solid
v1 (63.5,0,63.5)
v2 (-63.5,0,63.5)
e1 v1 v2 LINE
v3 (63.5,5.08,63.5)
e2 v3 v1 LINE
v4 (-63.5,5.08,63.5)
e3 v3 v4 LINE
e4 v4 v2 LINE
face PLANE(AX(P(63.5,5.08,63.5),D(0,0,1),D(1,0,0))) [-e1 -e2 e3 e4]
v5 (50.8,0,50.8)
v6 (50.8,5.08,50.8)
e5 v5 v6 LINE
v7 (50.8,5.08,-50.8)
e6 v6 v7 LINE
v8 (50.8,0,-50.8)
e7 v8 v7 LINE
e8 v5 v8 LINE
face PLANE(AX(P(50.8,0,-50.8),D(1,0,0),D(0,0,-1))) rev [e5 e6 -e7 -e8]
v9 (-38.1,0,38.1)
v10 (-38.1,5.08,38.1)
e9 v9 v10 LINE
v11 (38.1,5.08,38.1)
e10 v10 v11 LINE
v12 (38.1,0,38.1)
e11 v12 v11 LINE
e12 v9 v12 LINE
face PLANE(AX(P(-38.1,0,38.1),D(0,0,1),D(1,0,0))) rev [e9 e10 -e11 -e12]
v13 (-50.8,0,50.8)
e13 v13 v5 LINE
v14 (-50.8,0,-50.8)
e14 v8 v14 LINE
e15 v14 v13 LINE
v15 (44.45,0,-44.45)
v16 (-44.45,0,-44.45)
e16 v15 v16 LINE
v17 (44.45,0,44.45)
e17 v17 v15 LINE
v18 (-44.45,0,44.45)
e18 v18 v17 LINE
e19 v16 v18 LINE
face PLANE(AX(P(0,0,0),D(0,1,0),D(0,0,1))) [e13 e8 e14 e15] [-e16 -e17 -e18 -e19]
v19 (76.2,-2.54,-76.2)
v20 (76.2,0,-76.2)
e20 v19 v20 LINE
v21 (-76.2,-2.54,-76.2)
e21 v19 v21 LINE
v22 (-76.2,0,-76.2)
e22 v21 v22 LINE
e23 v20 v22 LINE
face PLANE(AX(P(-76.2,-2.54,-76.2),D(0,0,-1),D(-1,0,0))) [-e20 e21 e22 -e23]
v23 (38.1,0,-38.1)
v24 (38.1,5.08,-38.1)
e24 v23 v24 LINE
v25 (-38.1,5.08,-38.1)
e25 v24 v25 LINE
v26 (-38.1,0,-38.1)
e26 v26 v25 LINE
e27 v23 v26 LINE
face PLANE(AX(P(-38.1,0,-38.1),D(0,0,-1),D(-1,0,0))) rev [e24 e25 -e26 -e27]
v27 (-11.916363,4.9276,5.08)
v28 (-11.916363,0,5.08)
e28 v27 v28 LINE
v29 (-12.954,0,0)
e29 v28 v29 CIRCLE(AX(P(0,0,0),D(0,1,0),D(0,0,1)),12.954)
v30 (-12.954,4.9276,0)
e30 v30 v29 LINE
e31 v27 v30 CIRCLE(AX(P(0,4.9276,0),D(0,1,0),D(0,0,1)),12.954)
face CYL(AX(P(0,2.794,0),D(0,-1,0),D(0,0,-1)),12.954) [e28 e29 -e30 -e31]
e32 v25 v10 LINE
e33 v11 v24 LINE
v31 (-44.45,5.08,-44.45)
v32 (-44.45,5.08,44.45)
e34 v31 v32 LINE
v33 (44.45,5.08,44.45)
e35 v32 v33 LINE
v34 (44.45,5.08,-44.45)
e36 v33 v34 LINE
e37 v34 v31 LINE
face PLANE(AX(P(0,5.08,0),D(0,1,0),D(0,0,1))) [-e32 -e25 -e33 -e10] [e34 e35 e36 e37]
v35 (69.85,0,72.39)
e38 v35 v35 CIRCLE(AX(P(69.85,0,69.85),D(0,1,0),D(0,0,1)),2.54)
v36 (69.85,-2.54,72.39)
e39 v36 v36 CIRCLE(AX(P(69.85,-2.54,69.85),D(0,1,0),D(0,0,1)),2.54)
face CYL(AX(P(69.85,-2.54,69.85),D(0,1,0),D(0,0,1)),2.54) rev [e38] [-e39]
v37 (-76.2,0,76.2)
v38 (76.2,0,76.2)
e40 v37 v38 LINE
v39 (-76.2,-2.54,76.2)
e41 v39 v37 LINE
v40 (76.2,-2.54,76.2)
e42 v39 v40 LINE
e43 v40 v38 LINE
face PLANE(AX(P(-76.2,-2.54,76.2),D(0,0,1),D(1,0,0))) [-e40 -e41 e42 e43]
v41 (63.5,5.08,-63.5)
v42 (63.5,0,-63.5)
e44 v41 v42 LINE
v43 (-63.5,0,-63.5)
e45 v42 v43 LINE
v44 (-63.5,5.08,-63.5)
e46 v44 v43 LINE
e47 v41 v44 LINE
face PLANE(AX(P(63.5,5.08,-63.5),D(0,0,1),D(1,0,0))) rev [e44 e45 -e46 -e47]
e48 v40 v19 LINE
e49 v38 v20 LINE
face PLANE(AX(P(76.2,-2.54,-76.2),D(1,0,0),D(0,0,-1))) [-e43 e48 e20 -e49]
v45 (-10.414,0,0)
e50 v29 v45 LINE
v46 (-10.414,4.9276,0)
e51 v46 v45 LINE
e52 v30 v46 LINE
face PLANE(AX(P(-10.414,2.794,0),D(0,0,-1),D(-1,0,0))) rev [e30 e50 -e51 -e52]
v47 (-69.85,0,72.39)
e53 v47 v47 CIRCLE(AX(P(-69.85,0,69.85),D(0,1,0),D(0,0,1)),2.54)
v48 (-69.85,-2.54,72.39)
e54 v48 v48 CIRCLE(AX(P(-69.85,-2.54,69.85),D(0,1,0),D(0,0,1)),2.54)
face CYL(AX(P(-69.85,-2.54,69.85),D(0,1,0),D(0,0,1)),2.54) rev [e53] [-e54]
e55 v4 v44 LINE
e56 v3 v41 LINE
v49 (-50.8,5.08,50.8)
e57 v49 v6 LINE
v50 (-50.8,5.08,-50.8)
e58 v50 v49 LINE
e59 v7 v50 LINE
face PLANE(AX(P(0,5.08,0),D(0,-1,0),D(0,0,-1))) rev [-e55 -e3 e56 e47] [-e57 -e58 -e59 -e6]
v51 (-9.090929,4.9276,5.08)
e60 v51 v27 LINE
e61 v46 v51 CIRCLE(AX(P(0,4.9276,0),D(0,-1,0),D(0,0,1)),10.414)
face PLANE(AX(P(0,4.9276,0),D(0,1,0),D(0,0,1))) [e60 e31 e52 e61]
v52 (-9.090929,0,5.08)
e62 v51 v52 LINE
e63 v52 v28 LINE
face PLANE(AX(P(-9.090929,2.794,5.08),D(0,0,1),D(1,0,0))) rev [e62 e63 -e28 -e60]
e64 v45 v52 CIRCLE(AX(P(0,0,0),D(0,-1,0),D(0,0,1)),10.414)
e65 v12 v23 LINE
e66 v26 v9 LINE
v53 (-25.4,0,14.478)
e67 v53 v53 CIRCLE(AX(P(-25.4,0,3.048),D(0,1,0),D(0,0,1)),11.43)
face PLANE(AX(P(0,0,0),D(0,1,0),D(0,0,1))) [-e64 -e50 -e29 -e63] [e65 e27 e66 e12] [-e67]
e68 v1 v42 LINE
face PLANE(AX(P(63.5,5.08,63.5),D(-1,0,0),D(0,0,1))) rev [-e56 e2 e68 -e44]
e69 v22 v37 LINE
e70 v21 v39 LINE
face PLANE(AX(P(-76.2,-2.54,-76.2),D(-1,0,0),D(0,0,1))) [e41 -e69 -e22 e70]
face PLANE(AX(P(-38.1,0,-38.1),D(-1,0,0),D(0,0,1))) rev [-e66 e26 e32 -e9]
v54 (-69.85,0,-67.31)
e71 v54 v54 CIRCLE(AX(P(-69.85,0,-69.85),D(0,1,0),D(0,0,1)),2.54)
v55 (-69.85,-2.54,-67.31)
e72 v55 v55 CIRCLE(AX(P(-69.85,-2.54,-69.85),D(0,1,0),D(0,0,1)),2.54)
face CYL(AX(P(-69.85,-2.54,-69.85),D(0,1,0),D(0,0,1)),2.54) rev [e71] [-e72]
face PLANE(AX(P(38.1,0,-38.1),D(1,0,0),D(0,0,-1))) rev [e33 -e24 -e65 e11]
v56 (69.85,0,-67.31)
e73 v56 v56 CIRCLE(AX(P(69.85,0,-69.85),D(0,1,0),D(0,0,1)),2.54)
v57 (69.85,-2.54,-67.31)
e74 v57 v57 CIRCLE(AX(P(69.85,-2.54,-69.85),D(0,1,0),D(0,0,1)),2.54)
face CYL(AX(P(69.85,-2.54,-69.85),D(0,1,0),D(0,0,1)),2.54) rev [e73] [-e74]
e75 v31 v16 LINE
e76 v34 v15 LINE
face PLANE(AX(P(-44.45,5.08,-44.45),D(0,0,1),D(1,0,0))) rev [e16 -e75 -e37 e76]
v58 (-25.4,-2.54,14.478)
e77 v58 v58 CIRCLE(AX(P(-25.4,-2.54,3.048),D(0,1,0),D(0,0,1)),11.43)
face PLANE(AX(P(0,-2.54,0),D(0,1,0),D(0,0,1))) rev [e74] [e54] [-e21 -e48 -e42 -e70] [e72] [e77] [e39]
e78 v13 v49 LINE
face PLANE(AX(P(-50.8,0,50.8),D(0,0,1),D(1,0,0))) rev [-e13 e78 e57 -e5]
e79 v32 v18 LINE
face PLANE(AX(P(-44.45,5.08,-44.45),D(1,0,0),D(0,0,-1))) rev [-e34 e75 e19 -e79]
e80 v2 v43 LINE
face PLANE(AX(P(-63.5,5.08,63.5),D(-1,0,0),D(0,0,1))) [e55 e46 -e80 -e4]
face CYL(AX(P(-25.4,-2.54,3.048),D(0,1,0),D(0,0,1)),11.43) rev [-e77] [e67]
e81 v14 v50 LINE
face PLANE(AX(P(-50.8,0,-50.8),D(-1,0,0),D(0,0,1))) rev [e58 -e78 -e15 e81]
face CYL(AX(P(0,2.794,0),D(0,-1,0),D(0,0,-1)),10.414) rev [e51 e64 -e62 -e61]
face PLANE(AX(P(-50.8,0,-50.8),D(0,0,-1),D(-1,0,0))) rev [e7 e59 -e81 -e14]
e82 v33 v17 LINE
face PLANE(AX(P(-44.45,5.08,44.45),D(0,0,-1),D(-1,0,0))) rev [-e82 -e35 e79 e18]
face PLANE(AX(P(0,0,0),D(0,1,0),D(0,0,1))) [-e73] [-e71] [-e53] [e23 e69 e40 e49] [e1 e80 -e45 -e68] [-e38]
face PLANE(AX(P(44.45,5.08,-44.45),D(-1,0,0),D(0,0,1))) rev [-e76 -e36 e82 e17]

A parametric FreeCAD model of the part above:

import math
import FreeCAD as App
import Part
import Sketcher
from FreeCAD import Vector
Q = App.Units.Quantity


def add_polygon(sketch, points):
    """Adds a closed chain of lines whose ends are joined by coincident constraints."""
    first, n = sketch.GeometryCount, len(points)
    for a, b in zip(points, points[1:] + points[:1]):
        sketch.addGeometry(Part.LineSegment(App.Vector(*a, 0), App.Vector(*b, 0)), False)
    for i in range(n):
        sketch.addConstraint(Sketcher.Constraint("Coincident", first + i, 2, first + (i + 1) % n, 1))

doc = App.newDocument("Part")
body = doc.addObject("PartDesign::Body", "Body")

# Sketch on XZ plane
sketch1 = doc.addObject("Sketcher::SketchObject", "Sketch")
body.addObject(sketch1)
sketch1.AttachmentSupport = (doc.XZ_Plane, [""])
sketch1.MapMode = "FlatFace"
add_polygon(sketch1, [(-76, -76), (-76, 76), (76, 76), (76, -76)])  # lines 0-3
sketch1.addConstraint([
    Sketcher.Constraint("Vertical", 0),
    Sketcher.Constraint("Horizontal", 1),
    Sketcher.Constraint("Vertical", 2),
    Sketcher.Constraint("Horizontal", 3),
    Sketcher.Constraint("Symmetric", 0, 2, 2, 2, -1, 1),
    Sketcher.Constraint("Equal", 3, 0),
    Sketcher.Constraint("DistanceX", 1, 1, 1, 2, Q("6 in")),
])
pad1 = doc.addObject("PartDesign::Pad", "Pad")
body.addObject(pad1)
pad1.Profile = sketch1
pad1.Length = Q("0.1 in")

# Sketch on XZ plane
sketch2 = doc.addObject("Sketcher::SketchObject", "Sketch001")
body.addObject(sketch2)
sketch2.AttachmentSupport = (doc.XZ_Plane, [""])
sketch2.MapMode = "FlatFace"
add_polygon(sketch2, [(-64, -64), (-64, 64), (64, 64), (64, -64)])  # lines 0-3
sketch2.addConstraint([
    Sketcher.Constraint("Vertical", 0),
    Sketcher.Constraint("Horizontal", 1),
    Sketcher.Constraint("Vertical", 2),
    Sketcher.Constraint("Horizontal", 3),
    Sketcher.Constraint("Symmetric", 0, 2, 2, 2, -1, 1),
    Sketcher.Constraint("Equal", 3, 0),
    Sketcher.Constraint("DistanceX", 1, 1, 1, 2, Q("5 in")),
])
pad2 = doc.addObject("PartDesign::Pad", "Pad001")
body.addObject(pad2)
pad2.Profile = sketch2
pad2.Length = Q("0.2 in")
pad2.Reversed = True

# Sketch on XZ plane
sketch3 = doc.addObject("Sketcher::SketchObject", "Sketch002")
body.addObject(sketch3)
sketch3.AttachmentSupport = (doc.XZ_Plane, [""])
sketch3.MapMode = "FlatFace"
sketch3.AttachmentOffset = App.Placement(Vector(0, 0, -0.2 * 25.4), App.Rotation())
add_polygon(sketch3, [(-51, -51), (-51, 51), (51, 51), (51, -51)])  # lines 0-3
sketch3.addConstraint([
    Sketcher.Constraint("Vertical", 0),
    Sketcher.Constraint("Horizontal", 1),
    Sketcher.Constraint("Vertical", 2),
    Sketcher.Constraint("Horizontal", 3),
    Sketcher.Constraint("Symmetric", 0, 2, 2, 2, -1, 1),
    Sketcher.Constraint("Equal", 3, 0),
    Sketcher.Constraint("DistanceX", 1, 1, 1, 2, Q("4 in")),
])
pocket1 = doc.addObject("PartDesign::Pocket", "Pocket")
body.addObject(pocket1)
pocket1.Profile = sketch3
pocket1.Length = Q("0.2 in")
pocket1.Reversed = True

# Sketch on XZ plane
sketch4 = doc.addObject("Sketcher::SketchObject", "Sketch003")
body.addObject(sketch4)
sketch4.AttachmentSupport = (doc.XZ_Plane, [""])
sketch4.MapMode = "FlatFace"
add_polygon(sketch4, [(-44, -44), (-44, 44), (44, 44), (44, -44)])  # lines 0-3
sketch4.addConstraint([
    Sketcher.Constraint("Vertical", 0),
    Sketcher.Constraint("Horizontal", 1),
    Sketcher.Constraint("Vertical", 2),
    Sketcher.Constraint("Horizontal", 3),
    Sketcher.Constraint("Symmetric", 0, 2, 2, 2, -1, 1),
    Sketcher.Constraint("Equal", 3, 0),
    Sketcher.Constraint("DistanceX", 1, 1, 1, 2, Q("3.5 in")),
])
pad3 = doc.addObject("PartDesign::Pad", "Pad002")
body.addObject(pad3)
pad3.Profile = sketch4
pad3.Length = Q("0.2 in")
pad3.Reversed = True

# Sketch on XZ plane
sketch5 = doc.addObject("Sketcher::SketchObject", "Sketch004")
body.addObject(sketch5)
sketch5.AttachmentSupport = (doc.XZ_Plane, [""])
sketch5.MapMode = "FlatFace"
sketch5.AttachmentOffset = App.Placement(Vector(0, 0, -0.2 * 25.4), App.Rotation())
add_polygon(sketch5, [(-38, -38), (-38, 38), (38, 38), (38, -38)])  # lines 0-3
sketch5.addConstraint([
    Sketcher.Constraint("Vertical", 0),
    Sketcher.Constraint("Horizontal", 1),
    Sketcher.Constraint("Vertical", 2),
    Sketcher.Constraint("Horizontal", 3),
    Sketcher.Constraint("Symmetric", 0, 2, 2, 2, -1, 1),
    Sketcher.Constraint("Equal", 3, 0),
    Sketcher.Constraint("DistanceX", 1, 1, 1, 2, Q("3 in")),
])
pocket2 = doc.addObject("PartDesign::Pocket", "Pocket001")
body.addObject(pocket2)
pocket2.Profile = sketch5
pocket2.Length = Q("0.2 in")
pocket2.Reversed = True

# Sketch on XZ plane
sketch6 = doc.addObject("Sketcher::SketchObject", "Sketch005")
body.addObject(sketch6)
sketch6.AttachmentSupport = (doc.XZ_Plane, [""])
sketch6.MapMode = "FlatFace"
sketch6.addGeometry([
    Part.LineSegment(Vector(-13, 0, 0), Vector(-10.4, 0, 0)),
    Part.ArcOfCircle(Part.Circle(Vector(0, 0, 0), Vector(0, 0, 1), 10.4), math.radians(180), math.radians(511)),
    Part.LineSegment(Vector(-9.1, 5.1, 0), Vector(-11.9, 5.1, 0)),
    Part.ArcOfCircle(Part.Circle(Vector(0, 0, 0), Vector(0, 0, 1), 13), math.radians(180), math.radians(517)),
], False)
sketch6.addConstraint([
    Sketcher.Constraint("Coincident", 0, 2, 1, 1),
    Sketcher.Constraint("Coincident", 1, 2, 2, 1),
    Sketcher.Constraint("Coincident", 2, 2, 3, 2),
    Sketcher.Constraint("Coincident", 3, 1, 0, 1),
    Sketcher.Constraint("Horizontal", 0),
    Sketcher.Constraint("Horizontal", 2),
    Sketcher.Constraint("Coincident", 1, 3, -1, 1),
    Sketcher.Constraint("Coincident", 3, 3, -1, 1),
    Sketcher.Constraint("PointOnObject", 0, 2, -1),
    Sketcher.Constraint("Radius", 1, Q("0.41 in")),
    Sketcher.Constraint("Radius", 3, Q("0.51 in")),
    Sketcher.Constraint("DistanceY", -1, 1, 1, 2, Q("0.2 in")),
])
pad4 = doc.addObject("PartDesign::Pad", "Pad003")
body.addObject(pad4)
pad4.Profile = sketch6
pad4.Length = Q("0.11 in")
pad4.Reversed = True

# Sketch on XZ plane
sketch7 = doc.addObject("Sketcher::SketchObject", "Sketch006")
body.addObject(sketch7)
sketch7.AttachmentSupport = (doc.XZ_Plane, [""])
sketch7.MapMode = "FlatFace"
sketch7.addGeometry(Part.Circle(Vector(-25, 3, 0), Vector(0, 0, 1), 11), False)
sketch7.addConstraint([
    Sketcher.Constraint("Diameter", 0, Q("0.9 in")),
    Sketcher.Constraint("DistanceX", 0, 3, -1, 1, Q("1 in")),
    Sketcher.Constraint("DistanceY", -1, 1, 0, 3, Q("0.12 in")),
])
pocket3 = doc.addObject("PartDesign::Pocket", "Pocket002")
body.addObject(pocket3)
pocket3.Profile = sketch7
pocket3.Type = "ThroughAll"
pocket3.Reversed = True

# Sketch on XZ plane
sketch8 = doc.addObject("Sketcher::SketchObject", "Sketch007")
body.addObject(sketch8)
sketch8.AttachmentSupport = (doc.XZ_Plane, [""])
sketch8.MapMode = "FlatFace"
sketch8.addGeometry([
    Part.Circle(Vector(-69.8, 69.8, 0), Vector(0, 0, 1), 2.5),
    Part.Circle(Vector(69.8, 69.8, 0), Vector(0, 0, 1), 2.5),
    Part.Circle(Vector(69.8, -69.8, 0), Vector(0, 0, 1), 2.5),
    Part.Circle(Vector(-69.8, -69.8, 0), Vector(0, 0, 1), 2.5),
], False)
sketch8.addConstraint([
    Sketcher.Constraint("Equal", 0, 1),
    Sketcher.Constraint("Equal", 1, 2),
    Sketcher.Constraint("Equal", 2, 3),
    Sketcher.Constraint("Symmetric", 0, 3, 2, 3, -1, 1),
    Sketcher.Constraint("Symmetric", 1, 3, 3, 3, -1, 1),
    Sketcher.Constraint("Symmetric", 0, 3, 1, 3, -2),
    Sketcher.Constraint("Diameter", 0, Q("0.2 in")),
    Sketcher.Constraint("DistanceX", 0, 3, 1, 3, Q("5.5 in")),
    Sketcher.Constraint("DistanceY", 2, 3, 1, 3, Q("5.5 in")),
])
pocket4 = doc.addObject("PartDesign::Pocket", "Pocket003")
body.addObject(pocket4)
pocket4.Profile = sketch8
pocket4.Type = "ThroughAll"
pocket4.Reversed = True

# Sketch on XZ plane
sketch9 = doc.addObject("Sketcher::SketchObject", "Sketch008")
body.addObject(sketch9)
sketch9.AttachmentSupport = (doc.XZ_Plane, [""])
sketch9.MapMode = "FlatFace"
sketch9.addGeometry([
    Part.LineSegment(Vector(-13, 0, 0), Vector(-10.4, 0, 0)),
    Part.ArcOfCircle(Part.Circle(Vector(0, 0, 0), Vector(0, 0, 1), 10.4), math.radians(180), math.radians(511)),
    Part.LineSegment(Vector(-9.1, 5.1, 0), Vector(-11.9, 5.1, 0)),
    Part.ArcOfCircle(Part.Circle(Vector(0, 0, 0), Vector(0, 0, 1), 13), math.radians(180), math.radians(517)),
], False)
sketch9.addConstraint([
    Sketcher.Constraint("Coincident", 0, 2, 1, 1),
    Sketcher.Constraint("Coincident", 1, 2, 2, 1),
    Sketcher.Constraint("Coincident", 2, 2, 3, 2),
    Sketcher.Constraint("Coincident", 3, 1, 0, 1),
    Sketcher.Constraint("Horizontal", 0),
    Sketcher.Constraint("Horizontal", 2),
    Sketcher.Constraint("Coincident", 1, 3, -1, 1),
    Sketcher.Constraint("Coincident", 3, 3, -1, 1),
    Sketcher.Constraint("PointOnObject", 0, 2, -1),
    Sketcher.Constraint("Radius", 1, Q("0.41 in")),
    Sketcher.Constraint("Radius", 3, Q("0.51 in")),
    Sketcher.Constraint("DistanceY", -1, 1, 1, 2, Q("0.2 in")),
])
pad5 = doc.addObject("PartDesign::Pad", "Pad004")
body.addObject(pad5)
pad5.Profile = sketch9
pad5.Length = Q("0.194 in")
pad5.Reversed = True

doc.recompute()
